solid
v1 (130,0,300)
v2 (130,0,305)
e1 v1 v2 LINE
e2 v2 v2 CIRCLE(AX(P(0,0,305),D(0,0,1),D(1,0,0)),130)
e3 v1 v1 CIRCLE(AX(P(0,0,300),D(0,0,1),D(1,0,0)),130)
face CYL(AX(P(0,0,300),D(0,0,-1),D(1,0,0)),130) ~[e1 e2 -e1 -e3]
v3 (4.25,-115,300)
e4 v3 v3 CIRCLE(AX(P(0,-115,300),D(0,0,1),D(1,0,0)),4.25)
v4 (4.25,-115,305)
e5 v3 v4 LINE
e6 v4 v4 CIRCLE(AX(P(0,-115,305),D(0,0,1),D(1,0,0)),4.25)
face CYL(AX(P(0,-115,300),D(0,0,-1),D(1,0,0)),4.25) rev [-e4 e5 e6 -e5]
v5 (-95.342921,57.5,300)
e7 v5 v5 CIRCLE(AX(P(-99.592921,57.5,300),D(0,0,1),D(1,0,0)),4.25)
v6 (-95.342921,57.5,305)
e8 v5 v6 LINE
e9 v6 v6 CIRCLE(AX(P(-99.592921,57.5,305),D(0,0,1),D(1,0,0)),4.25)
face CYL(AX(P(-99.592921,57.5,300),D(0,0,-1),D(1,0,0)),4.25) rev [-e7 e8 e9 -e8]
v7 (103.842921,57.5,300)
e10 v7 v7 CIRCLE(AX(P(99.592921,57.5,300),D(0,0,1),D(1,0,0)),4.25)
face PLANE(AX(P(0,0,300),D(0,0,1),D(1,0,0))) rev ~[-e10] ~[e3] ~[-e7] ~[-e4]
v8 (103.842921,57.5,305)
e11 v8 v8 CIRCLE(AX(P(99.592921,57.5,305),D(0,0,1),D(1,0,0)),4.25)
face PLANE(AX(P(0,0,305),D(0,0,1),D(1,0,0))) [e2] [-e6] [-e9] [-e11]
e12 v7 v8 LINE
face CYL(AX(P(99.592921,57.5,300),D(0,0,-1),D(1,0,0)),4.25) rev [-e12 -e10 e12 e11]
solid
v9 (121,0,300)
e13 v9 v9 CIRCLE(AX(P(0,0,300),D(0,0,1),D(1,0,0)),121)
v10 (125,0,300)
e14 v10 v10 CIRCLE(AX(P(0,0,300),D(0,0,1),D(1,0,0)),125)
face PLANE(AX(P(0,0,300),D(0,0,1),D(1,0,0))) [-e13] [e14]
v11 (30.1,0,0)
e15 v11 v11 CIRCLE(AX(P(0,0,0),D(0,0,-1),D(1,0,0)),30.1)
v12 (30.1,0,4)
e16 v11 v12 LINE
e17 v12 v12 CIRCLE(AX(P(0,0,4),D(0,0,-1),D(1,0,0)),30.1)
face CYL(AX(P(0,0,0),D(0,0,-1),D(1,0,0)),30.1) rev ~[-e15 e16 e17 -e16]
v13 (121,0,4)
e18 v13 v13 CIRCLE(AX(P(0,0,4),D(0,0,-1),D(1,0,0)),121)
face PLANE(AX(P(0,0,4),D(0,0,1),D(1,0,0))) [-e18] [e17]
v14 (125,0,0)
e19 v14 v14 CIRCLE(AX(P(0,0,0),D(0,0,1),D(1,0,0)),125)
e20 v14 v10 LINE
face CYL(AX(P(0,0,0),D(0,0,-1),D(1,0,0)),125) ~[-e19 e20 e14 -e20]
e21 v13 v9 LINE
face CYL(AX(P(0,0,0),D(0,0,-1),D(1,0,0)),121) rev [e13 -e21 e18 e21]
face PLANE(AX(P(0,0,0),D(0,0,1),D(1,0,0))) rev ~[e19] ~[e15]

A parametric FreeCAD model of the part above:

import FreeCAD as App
import Part
import Sketcher


def faces_at(feature, points):
    """Names of the faces that lie closest to the given points."""
    faces = feature.Shape.Faces
    near = lambda p: min(range(len(faces)), key=lambda i: faces[i].distToShape(Part.Vertex(*p))[0])
    return sorted({f"Face{near(p) + 1}" for p in points})

doc = App.newDocument("Part")
body = doc.addObject("PartDesign::Body", "Body")

sketch1 = doc.addObject("Sketcher::SketchObject", "Sketch")
body.addObject(sketch1)
sketch1.AttachmentSupport = (doc.XY_Plane, [""])
sketch1.MapMode = "FlatFace"
sketch1.addGeometry(Part.Circle(App.Vector(0, 0, 0), App.Vector(0, 0, 1), 125), False)
sketch1.addConstraint(Sketcher.Constraint("Coincident", 0, 3, -1, 1))
sketch1.addConstraint(Sketcher.Constraint("Diameter", 0, 250.0))
pad1 = doc.addObject("PartDesign::Pad", "Pad")
body.addObject(pad1)
pad1.Profile = sketch1
pad1.Length = 300
doc.recompute()

thickness = doc.addObject("PartDesign::Thickness", "Thickness")
body.addObject(thickness)
thickness.Base = (pad1, faces_at(pad1, [(0, 0, 300)]))
thickness.Value = 4
thickness.Reversed = True
thickness.Join = "Arc"

sketch2 = doc.addObject("Sketcher::SketchObject", "Sketch001")
body.addObject(sketch2)
sketch2.AttachmentSupport = (doc.XY_Plane, [""])
sketch2.MapMode = "FlatFace"
sketch2.addGeometry(Part.Circle(App.Vector(0, 0, 0), App.Vector(0, 0, 1), 30), False)
sketch2.addConstraint(Sketcher.Constraint("Coincident", 0, 3, -1, 1))
sketch2.addConstraint(Sketcher.Constraint("Diameter", 0, 60.2))
pocket1 = doc.addObject("PartDesign::Pocket", "Pocket")
body.addObject(pocket1)
pocket1.Profile = sketch2
pocket1.Length = 25
pocket1.Reversed = True
body2 = doc.addObject("PartDesign::Body", "Body001")

sketch3 = doc.addObject("Sketcher::SketchObject", "Sketch002")
body2.addObject(sketch3)
sketch3.AttachmentSupport = (doc.getObject("XY_Plane001"), [""])
sketch3.MapMode = "FlatFace"
sketch3.AttachmentOffset = App.Placement(App.Vector(0, 0, 300), App.Rotation())
sketch3.addGeometry(Part.Circle(App.Vector(0, 0, 0), App.Vector(0, 0, 1), 130), False)
sketch3.addGeometry(Part.Circle(App.Vector(0, -115, 0), App.Vector(0, 0, 1), 4.2), False)
sketch3.addGeometry(Part.Circle(App.Vector(-99.6, 57.5, 0), App.Vector(0, 0, 1), 4.2), False)
sketch3.addGeometry(Part.Circle(App.Vector(99.6, 57.5, 0), App.Vector(0, 0, 1), 4.2), False)
sketch3.addConstraint(Sketcher.Constraint("Coincident", 0, 3, -1, 1))
sketch3.addConstraint(Sketcher.Constraint("Equal", 1, 2))
sketch3.addConstraint(Sketcher.Constraint("Equal", 2, 3))
sketch3.addConstraint(Sketcher.Constraint("Symmetric", 2, 3, 3, 3, -2))
sketch3.addConstraint(Sketcher.Constraint("PointOnObject", 1, 3, -2))
sketch3.addConstraint(Sketcher.Constraint("Diameter", 0, 260.0))
sketch3.addConstraint(Sketcher.Constraint("Diameter", 1, 8.5))
sketch3.addConstraint(Sketcher.Constraint("DistanceY", 1, 3, -1, 1, 115.0))
sketch3.addConstraint(Sketcher.Constraint("DistanceY", -1, 1, 2, 3, 57.5))
sketch3.addConstraint(Sketcher.Constraint("DistanceX", 2, 3, -1, 1, 99.592921))
pad2 = doc.addObject("PartDesign::Pad", "Pad001")
body2.addObject(pad2)
pad2.Profile = sketch3
pad2.Length = 5

doc.recompute()
